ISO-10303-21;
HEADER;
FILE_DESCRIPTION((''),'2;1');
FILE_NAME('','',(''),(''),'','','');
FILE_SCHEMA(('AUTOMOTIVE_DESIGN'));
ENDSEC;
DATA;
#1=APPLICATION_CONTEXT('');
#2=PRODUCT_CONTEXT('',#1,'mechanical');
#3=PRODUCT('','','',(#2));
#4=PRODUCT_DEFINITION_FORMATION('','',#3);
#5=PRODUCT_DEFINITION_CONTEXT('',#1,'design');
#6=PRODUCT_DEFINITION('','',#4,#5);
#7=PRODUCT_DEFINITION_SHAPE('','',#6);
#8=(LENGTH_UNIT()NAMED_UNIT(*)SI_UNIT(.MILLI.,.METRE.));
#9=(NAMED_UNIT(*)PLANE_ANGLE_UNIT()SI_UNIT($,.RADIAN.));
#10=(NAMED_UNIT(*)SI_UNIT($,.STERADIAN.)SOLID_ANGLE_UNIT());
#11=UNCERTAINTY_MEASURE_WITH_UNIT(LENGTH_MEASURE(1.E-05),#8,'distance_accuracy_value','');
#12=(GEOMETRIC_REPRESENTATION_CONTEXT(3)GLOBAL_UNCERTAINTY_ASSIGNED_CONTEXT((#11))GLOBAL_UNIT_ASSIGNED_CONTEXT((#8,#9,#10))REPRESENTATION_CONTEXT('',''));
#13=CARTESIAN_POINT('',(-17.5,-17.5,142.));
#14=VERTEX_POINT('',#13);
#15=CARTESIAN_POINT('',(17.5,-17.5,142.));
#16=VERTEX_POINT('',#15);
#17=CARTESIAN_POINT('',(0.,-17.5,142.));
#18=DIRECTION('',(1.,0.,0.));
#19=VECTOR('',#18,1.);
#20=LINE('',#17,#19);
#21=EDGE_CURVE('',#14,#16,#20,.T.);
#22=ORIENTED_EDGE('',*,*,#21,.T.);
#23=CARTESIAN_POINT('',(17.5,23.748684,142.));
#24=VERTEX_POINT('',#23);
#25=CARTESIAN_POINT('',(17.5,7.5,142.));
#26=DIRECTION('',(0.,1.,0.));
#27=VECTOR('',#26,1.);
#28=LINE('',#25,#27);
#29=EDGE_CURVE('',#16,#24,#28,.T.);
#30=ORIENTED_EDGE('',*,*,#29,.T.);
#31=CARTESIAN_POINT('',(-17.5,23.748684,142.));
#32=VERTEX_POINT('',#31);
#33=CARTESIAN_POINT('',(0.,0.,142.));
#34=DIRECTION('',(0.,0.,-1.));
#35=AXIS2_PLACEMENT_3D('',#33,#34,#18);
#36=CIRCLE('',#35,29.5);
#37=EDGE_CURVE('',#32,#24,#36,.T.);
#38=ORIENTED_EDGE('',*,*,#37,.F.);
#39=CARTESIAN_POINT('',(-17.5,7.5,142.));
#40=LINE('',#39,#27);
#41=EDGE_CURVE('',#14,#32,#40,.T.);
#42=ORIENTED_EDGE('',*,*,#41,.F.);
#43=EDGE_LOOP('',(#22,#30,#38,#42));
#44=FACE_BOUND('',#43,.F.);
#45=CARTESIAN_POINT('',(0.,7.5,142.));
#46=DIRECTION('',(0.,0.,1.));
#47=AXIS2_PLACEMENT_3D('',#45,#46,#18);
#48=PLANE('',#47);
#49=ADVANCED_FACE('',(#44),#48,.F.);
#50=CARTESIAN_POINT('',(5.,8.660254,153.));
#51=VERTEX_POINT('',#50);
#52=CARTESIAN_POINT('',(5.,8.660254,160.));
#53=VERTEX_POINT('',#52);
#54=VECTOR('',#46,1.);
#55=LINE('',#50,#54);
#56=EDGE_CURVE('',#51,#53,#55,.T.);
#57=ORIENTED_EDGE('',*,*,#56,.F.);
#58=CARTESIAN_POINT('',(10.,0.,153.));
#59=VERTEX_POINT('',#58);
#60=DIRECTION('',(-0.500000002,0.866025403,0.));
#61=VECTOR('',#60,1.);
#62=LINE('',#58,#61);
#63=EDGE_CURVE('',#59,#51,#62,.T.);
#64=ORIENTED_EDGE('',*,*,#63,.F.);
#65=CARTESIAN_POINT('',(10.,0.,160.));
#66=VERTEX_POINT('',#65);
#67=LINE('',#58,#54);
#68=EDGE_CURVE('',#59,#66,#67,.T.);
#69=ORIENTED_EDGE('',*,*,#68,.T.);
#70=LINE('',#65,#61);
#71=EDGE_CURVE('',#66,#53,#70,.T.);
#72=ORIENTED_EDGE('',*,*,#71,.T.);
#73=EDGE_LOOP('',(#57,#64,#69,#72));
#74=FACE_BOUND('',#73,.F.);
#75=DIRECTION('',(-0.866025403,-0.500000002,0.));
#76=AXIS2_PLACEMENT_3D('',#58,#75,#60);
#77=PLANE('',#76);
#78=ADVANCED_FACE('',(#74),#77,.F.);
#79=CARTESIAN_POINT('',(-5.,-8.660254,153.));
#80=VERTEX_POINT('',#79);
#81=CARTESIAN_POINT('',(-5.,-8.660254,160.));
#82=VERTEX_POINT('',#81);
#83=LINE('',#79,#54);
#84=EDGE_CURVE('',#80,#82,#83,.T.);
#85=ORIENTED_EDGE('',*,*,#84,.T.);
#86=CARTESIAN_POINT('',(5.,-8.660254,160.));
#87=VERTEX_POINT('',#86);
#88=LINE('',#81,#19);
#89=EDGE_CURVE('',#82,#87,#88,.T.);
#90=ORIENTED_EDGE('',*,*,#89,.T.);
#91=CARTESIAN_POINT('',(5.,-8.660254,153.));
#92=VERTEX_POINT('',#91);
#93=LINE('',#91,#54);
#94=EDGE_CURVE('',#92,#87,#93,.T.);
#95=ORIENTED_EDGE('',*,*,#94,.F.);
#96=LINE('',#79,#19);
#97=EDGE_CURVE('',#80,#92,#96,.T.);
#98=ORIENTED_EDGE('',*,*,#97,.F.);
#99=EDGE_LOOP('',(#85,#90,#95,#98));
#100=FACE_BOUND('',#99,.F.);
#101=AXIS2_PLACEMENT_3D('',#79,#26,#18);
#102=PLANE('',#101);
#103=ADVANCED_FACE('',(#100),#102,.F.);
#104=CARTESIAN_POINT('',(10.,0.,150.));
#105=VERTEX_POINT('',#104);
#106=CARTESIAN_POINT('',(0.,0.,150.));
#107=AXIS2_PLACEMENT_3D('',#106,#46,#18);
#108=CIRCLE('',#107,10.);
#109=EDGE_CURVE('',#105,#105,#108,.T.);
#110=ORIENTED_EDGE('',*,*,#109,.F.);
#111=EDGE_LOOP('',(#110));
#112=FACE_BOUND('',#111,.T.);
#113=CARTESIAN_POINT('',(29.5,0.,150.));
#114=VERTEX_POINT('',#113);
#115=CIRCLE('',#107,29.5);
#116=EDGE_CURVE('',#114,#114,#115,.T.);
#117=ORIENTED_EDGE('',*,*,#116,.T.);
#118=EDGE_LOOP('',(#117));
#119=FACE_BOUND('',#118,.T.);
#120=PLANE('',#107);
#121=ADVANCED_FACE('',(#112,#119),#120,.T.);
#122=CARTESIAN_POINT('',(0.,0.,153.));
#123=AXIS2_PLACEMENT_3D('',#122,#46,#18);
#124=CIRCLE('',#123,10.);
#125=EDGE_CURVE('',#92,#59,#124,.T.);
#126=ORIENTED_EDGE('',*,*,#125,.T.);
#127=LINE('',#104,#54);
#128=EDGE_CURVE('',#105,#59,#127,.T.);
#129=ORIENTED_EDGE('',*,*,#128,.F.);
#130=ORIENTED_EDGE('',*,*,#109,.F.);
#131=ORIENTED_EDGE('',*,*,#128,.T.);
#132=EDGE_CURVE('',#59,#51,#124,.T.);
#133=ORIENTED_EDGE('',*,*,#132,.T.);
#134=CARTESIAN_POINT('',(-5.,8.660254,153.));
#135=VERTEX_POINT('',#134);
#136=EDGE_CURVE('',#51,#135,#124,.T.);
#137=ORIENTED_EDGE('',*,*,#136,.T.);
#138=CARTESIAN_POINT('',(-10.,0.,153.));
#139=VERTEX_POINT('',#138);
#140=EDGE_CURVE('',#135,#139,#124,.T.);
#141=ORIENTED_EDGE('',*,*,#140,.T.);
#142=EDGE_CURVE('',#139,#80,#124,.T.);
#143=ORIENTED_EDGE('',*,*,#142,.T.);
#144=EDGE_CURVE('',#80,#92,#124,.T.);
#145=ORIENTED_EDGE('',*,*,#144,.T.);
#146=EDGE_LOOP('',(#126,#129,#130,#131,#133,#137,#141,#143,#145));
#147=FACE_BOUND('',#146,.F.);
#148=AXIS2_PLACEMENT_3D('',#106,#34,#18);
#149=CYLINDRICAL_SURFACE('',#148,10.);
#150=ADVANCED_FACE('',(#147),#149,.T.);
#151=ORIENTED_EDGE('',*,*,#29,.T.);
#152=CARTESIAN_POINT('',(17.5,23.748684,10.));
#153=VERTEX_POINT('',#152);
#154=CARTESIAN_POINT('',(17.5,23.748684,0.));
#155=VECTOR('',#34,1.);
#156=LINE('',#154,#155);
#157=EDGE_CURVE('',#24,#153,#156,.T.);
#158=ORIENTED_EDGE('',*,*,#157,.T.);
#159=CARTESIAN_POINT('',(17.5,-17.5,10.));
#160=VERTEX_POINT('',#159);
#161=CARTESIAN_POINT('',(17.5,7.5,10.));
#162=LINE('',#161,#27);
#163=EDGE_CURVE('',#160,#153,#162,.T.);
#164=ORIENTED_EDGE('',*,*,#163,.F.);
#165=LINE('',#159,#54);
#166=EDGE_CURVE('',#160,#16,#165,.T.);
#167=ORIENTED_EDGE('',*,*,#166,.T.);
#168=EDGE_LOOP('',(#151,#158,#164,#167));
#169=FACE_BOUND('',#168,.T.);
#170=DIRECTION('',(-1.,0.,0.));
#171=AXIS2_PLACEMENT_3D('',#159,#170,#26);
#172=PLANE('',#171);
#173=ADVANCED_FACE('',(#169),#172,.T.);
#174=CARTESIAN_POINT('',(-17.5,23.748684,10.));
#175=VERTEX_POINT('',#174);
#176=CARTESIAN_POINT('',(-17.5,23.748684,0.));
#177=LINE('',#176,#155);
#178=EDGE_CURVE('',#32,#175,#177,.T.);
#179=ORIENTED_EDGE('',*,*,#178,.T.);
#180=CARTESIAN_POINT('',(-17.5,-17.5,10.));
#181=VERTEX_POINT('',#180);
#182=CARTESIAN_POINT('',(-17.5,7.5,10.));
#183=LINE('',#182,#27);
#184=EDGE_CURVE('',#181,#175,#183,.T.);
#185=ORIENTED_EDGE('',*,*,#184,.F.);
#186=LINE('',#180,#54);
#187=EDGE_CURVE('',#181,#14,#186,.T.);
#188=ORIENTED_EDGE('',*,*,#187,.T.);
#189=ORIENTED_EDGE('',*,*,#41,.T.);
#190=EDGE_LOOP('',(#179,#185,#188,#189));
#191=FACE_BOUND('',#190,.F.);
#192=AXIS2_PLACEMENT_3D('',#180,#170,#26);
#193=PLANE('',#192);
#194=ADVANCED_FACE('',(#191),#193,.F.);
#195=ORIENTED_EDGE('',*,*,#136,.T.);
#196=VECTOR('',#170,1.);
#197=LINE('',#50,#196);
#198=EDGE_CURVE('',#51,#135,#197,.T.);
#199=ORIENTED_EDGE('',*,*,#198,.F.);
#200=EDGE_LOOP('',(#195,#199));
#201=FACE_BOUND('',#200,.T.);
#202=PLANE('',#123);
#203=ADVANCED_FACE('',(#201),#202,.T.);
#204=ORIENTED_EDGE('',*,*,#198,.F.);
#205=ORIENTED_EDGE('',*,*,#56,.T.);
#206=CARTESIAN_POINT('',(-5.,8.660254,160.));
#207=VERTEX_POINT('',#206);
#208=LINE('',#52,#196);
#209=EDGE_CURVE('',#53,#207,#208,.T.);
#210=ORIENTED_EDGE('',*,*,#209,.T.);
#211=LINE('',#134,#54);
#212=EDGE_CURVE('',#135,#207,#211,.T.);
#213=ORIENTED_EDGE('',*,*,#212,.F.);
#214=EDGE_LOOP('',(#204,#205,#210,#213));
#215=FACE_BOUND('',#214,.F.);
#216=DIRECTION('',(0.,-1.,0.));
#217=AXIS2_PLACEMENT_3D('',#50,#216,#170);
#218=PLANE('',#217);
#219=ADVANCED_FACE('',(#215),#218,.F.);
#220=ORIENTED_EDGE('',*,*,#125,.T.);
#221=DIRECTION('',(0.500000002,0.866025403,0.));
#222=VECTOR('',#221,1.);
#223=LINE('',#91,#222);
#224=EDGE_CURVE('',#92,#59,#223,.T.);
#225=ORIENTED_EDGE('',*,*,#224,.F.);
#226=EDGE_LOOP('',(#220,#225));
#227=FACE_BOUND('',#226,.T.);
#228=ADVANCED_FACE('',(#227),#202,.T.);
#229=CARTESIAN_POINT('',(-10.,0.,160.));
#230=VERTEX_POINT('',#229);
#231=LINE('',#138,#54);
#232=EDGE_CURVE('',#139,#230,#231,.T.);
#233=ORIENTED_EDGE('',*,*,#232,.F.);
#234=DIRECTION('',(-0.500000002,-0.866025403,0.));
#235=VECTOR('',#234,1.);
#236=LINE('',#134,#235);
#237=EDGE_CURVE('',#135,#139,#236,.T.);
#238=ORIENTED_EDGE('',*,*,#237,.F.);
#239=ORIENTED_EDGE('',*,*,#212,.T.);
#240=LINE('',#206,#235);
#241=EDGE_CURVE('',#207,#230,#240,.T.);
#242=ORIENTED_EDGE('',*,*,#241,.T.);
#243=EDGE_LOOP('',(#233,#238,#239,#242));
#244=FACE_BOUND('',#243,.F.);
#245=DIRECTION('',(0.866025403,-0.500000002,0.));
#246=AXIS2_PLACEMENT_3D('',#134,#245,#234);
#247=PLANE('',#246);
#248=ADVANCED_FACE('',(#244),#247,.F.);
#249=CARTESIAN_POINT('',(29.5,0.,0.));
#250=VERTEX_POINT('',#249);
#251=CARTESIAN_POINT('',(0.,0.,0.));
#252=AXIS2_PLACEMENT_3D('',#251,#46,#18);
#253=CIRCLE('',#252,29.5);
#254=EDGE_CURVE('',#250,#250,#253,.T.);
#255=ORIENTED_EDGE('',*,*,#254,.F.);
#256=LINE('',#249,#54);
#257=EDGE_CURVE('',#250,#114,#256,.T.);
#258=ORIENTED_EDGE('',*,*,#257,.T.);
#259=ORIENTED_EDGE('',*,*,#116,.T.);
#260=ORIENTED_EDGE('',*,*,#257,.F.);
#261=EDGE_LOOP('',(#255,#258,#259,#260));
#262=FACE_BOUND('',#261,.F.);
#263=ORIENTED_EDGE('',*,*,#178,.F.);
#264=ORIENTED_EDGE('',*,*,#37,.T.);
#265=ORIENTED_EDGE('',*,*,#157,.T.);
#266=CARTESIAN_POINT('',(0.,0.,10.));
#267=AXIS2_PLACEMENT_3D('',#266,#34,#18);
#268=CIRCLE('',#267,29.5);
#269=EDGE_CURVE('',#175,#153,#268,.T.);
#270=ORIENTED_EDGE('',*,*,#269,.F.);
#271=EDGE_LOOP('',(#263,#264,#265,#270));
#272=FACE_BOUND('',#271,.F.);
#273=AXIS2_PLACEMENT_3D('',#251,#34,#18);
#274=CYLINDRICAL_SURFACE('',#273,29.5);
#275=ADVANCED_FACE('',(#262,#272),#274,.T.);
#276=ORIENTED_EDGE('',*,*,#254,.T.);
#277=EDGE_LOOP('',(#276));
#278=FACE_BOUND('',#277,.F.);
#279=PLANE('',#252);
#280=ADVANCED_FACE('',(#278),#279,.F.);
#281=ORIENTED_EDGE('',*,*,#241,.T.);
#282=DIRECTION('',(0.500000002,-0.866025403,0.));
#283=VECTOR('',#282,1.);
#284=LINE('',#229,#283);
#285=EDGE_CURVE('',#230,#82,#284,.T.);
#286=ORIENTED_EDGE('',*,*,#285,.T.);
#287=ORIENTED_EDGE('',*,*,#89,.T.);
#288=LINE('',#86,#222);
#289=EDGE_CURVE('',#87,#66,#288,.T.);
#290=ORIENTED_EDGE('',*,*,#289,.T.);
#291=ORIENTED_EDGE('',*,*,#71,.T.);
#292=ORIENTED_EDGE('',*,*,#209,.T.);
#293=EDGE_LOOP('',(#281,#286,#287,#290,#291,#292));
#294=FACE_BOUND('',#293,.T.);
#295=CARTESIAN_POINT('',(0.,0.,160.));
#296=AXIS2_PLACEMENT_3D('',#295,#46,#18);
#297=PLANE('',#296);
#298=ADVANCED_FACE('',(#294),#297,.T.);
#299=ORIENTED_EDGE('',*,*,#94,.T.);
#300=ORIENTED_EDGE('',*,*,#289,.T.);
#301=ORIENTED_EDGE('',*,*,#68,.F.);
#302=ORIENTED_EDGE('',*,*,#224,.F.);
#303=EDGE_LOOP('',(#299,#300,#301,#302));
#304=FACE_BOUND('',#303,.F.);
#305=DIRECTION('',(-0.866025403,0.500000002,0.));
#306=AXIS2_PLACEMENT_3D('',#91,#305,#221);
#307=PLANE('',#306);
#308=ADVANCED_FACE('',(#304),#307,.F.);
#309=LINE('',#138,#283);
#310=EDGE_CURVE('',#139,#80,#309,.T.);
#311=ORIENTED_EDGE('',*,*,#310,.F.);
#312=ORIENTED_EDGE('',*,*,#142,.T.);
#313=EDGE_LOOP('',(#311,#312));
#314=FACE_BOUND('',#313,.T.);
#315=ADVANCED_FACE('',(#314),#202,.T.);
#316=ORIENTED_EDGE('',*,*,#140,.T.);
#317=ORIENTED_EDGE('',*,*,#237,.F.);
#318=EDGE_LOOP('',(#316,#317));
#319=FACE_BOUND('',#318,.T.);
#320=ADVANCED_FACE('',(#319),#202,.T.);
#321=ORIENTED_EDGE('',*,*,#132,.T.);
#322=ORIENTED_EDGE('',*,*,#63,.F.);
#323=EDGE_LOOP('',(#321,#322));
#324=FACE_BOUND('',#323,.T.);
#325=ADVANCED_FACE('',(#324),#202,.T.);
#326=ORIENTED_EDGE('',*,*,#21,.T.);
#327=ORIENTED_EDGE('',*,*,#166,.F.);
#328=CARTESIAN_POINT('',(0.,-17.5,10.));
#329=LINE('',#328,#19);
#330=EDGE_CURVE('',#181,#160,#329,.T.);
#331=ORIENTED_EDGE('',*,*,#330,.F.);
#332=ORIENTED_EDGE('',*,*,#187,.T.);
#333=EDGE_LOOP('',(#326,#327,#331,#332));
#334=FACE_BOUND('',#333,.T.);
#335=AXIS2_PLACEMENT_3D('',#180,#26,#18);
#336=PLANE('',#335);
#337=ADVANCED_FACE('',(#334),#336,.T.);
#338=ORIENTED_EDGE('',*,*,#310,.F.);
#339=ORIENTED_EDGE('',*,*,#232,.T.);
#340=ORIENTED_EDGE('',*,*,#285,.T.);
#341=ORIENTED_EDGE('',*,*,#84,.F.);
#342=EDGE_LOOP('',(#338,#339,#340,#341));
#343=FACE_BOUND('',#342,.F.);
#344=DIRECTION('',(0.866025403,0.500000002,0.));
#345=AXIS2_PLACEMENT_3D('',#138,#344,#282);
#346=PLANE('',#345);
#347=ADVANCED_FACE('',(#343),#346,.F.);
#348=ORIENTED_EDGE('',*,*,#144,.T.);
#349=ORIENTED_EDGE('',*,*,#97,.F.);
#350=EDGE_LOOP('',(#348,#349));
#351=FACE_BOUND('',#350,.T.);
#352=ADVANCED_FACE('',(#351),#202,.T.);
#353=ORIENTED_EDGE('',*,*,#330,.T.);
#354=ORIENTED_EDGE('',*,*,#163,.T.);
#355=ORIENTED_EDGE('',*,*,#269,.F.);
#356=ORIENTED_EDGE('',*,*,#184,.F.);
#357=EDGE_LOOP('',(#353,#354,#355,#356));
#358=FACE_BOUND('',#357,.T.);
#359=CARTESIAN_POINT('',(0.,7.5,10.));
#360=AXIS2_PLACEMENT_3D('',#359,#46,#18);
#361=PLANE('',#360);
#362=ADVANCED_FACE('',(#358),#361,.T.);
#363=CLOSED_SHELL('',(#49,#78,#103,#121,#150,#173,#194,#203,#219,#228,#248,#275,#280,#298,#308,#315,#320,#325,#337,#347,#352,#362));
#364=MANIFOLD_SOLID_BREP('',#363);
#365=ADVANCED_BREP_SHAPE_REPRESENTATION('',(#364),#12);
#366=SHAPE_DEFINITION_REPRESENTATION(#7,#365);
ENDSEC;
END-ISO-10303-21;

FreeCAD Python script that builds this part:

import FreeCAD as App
import Part
import Sketcher
Q = App.Units.Quantity


def add_polygon(sketch, points):
    """Adds a closed chain of lines whose ends are joined by coincident constraints."""
    first, n = sketch.GeometryCount, len(points)
    for a, b in zip(points, points[1:] + points[:1]):
        sketch.addGeometry(Part.LineSegment(App.Vector(*a, 0), App.Vector(*b, 0)), False)
    for i in range(n):
        sketch.addConstraint(Sketcher.Constraint("Coincident", first + i, 2, first + (i + 1) % n, 1))

doc = App.newDocument("Part")
body = doc.addObject("PartDesign::Body", "Body")

# Sketch on XY plane
sketch1 = body.newObject("Sketcher::SketchObject", "Sketch")
sketch1.AttachmentSupport = (doc.getObject("XY_Plane"), [""])
sketch1.MapMode = "FlatFace"
sketch1.addGeometry(Part.Circle(App.Vector(0, 0, 0), App.Vector(0, 0, 1), 30), False)
sketch1.addConstraint(Sketcher.Constraint("Coincident", 0, 3, -1, 1))
sketch1.addConstraint(Sketcher.Constraint("Diameter", 0, 59.0))
pad1 = body.newObject("PartDesign::Pad", "Pad")
pad1.Profile = sketch1
pad1.Length = 150

# Sketch on XY plane
sketch2 = body.newObject("Sketcher::SketchObject", "Sketch001")
sketch2.AttachmentSupport = (doc.getObject("XY_Plane"), [""])
sketch2.MapMode = "FlatFace"
sketch2.AttachmentOffset = App.Placement(App.Vector(0, 0, 10), App.Rotation())
add_polygon(sketch2, [(-18, 32), (-18, -18), (18, -18), (18, 32)])  # lines 0-3
sketch2.addConstraint(Sketcher.Constraint("Vertical", 0))
sketch2.addConstraint(Sketcher.Constraint("Horizontal", 1))
sketch2.addConstraint(Sketcher.Constraint("Vertical", 2))
sketch2.addConstraint(Sketcher.Constraint("Horizontal", 3))
sketch2.addConstraint(Sketcher.Constraint("DistanceX", 1, 1, 1, 2, 35.0))
sketch2.addConstraint(Sketcher.Constraint("DistanceY", 0, 2, 0, 1, 50.0))
sketch2.addConstraint(Sketcher.Constraint("DistanceX", 0, 2, -1, 1, 17.5))
sketch2.addConstraint(Sketcher.Constraint("DistanceY", 0, 2, -1, 1, 17.5))
pocket1 = body.newObject("PartDesign::Pocket", "Pocket")
pocket1.Profile = sketch2
pocket1.Length = 132
pocket1.Reversed = True

# Sketch on XY plane
sketch3 = body.newObject("Sketcher::SketchObject", "Sketch002")
sketch3.AttachmentSupport = (doc.getObject("XY_Plane"), [""])
sketch3.MapMode = "FlatFace"
sketch3.AttachmentOffset = App.Placement(App.Vector(0, 0, 150), App.Rotation())
sketch3.addGeometry(Part.Circle(App.Vector(0, 0, 0), App.Vector(0, 0, 1), 10), False)
sketch3.addConstraint(Sketcher.Constraint("Coincident", 0, 3, -1, 1))
sketch3.addConstraint(Sketcher.Constraint("Diameter", 0, 20.0))
pad2 = body.newObject("PartDesign::Pad", "Pad001")
pad2.Profile = sketch3
pad2.Length = 3

# Sketch on XY plane
sketch4 = body.newObject("Sketcher::SketchObject", "Sketch003")
sketch4.AttachmentSupport = (doc.getObject("XY_Plane"), [""])
sketch4.MapMode = "FlatFace"
sketch4.AttachmentOffset = App.Placement(App.Vector(0, 0, 153), App.Rotation())
add_polygon(sketch4, [(10, 0), (5, 9), (-5, 9), (-10, 0), (-5, -9), (5, -9)])  # lines 0-5
sketch4.addConstraint(Sketcher.Constraint("Horizontal", 1))
sketch4.addConstraint(Sketcher.Constraint("Horizontal", 4))
sketch4.addConstraint(Sketcher.Constraint("Symmetric", 0, 2, 3, 2, -1, 1))
sketch4.addConstraint(Sketcher.Constraint("Symmetric", 2, 2, 5, 2, -1, 1))
sketch4.addConstraint(Sketcher.Constraint("PointOnObject", 2, 2, -1))
sketch4.addConstraint(Sketcher.Constraint("Parallel", 2, 5))
sketch4.addConstraint(Sketcher.Constraint("Vertical", 1, 2, 3, 2))
sketch4.addConstraint(Sketcher.Constraint("DistanceX", 1, 2, 1, 1, 10.0))
sketch4.addConstraint(Sketcher.Constraint("Angle", 0, Q("120 deg")))
sketch4.addConstraint(Sketcher.Constraint("Distance", 0, 10.0))
pad3 = body.newObject("PartDesign::Pad", "Pad002")
pad3.Profile = sketch4
pad3.Length = 7

doc.recompute()
